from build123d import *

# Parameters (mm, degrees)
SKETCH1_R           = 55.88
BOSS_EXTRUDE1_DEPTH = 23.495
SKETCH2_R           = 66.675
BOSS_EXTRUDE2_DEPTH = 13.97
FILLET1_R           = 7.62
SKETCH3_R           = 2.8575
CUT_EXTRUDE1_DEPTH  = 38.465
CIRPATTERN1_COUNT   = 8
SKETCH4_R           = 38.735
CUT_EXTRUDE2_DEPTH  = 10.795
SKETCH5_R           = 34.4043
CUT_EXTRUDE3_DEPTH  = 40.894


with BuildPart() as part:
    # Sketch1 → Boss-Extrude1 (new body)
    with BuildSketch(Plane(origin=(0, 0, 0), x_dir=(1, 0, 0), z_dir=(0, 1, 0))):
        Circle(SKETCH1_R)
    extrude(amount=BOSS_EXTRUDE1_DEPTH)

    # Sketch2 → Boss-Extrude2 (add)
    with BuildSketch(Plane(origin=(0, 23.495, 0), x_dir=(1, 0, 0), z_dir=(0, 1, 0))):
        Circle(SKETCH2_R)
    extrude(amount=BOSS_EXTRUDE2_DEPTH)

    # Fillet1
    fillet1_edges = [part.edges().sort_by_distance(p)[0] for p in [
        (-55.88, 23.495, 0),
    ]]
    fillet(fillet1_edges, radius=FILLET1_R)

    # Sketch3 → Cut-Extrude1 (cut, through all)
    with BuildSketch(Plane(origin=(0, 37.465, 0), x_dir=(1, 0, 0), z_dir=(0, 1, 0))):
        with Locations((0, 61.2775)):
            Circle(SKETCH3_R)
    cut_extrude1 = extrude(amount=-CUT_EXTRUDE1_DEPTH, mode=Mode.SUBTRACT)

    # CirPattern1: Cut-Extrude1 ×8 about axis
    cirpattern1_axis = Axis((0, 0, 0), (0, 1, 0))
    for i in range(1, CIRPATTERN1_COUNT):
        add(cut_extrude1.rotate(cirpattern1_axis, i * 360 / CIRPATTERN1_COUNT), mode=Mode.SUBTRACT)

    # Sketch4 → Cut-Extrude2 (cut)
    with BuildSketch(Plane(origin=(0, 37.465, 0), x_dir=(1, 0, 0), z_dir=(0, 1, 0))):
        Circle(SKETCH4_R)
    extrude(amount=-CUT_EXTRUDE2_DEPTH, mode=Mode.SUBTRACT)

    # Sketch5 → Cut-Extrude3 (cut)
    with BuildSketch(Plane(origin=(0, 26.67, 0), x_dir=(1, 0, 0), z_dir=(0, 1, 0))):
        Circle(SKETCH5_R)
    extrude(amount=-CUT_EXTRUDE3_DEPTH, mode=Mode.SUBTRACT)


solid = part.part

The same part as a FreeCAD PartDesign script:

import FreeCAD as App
import Part
import Sketcher

V = App.Vector
Q = App.Units.Quantity


def edges_at(feature, points):
    """Names of the edges that pass closest to the given points."""
    edges = feature.Shape.Edges
    near = lambda p: min(range(len(edges)), key=lambda i: edges[i].distToShape(Part.Vertex(*p))[0])
    return sorted({f"Edge{near(p) + 1}" for p in points})

doc = App.newDocument("Part")
body = doc.addObject("PartDesign::Body", "Body")

sketch1 = body.newObject("Sketcher::SketchObject", "Sketch")
sketch1.AttachmentSupport = (doc.getObject("XZ_Plane"), [""])
sketch1.MapMode = "FlatFace"
sketch1.addGeometry(Part.Circle(V(0, 0, 0), V(0, 0, 1), 56), False)
sketch1.addConstraint(Sketcher.Constraint("Coincident", 0, 3, -1, 1))
sketch1.addConstraint(Sketcher.Constraint("Diameter", 0, Q("4.4 in")))
pad1 = body.newObject("PartDesign::Pad", "Pad")
pad1.Profile = sketch1
pad1.Length = Q("0.925 in")
pad1.Reversed = True

sketch2 = body.newObject("Sketcher::SketchObject", "Sketch001")
sketch2.AttachmentSupport = (doc.getObject("XZ_Plane"), [""])
sketch2.MapMode = "FlatFace"
sketch2.AttachmentOffset = App.Placement(V(0, 0, -0.925 * 25.4), App.Rotation())
sketch2.addGeometry(Part.Circle(V(0, 0, 0), V(0, 0, 1), 67), False)
sketch2.addConstraint(Sketcher.Constraint("Coincident", 0, 3, -1, 1))
sketch2.addConstraint(Sketcher.Constraint("Diameter", 0, Q("5.25 in")))
pad2 = body.newObject("PartDesign::Pad", "Pad001")
pad2.Profile = sketch2
pad2.Length = Q("0.55 in")
pad2.Reversed = True
doc.recompute()

fillet = body.newObject("PartDesign::Fillet", "Fillet")
fillet.Base = (pad2, edges_at(pad2, [(-55.88, 23.495, 0)]))
fillet.Radius = Q("0.3 in")

sketch3 = body.newObject("Sketcher::SketchObject", "Sketch002")
sketch3.AttachmentSupport = (doc.getObject("XZ_Plane"), [""])
sketch3.MapMode = "FlatFace"
sketch3.AttachmentOffset = App.Placement(V(0, 0, -1.475 * 25.4), App.Rotation())
sketch3.addGeometry(Part.Circle(V(0, -61.3, 0), V(0, 0, 1), 2.9), False)
sketch3.addConstraint(Sketcher.Constraint("PointOnObject", 0, 3, -2))
sketch3.addConstraint(Sketcher.Constraint("Diameter", 0, Q("0.225 in")))
sketch3.addConstraint(Sketcher.Constraint("DistanceY", 0, 3, -1, 1, Q("2.4125 in")))
pocket1 = body.newObject("PartDesign::Pocket", "Pocket")
pocket1.Profile = sketch3
pocket1.Type = "ThroughAll"
pocket1.Reversed = True
doc.recompute()

polarpattern = body.newObject("PartDesign::PolarPattern", "PolarPattern")
polarpattern.Originals = [pocket1]
polarpattern.Axis = (doc.getObject("Y_Axis"), [""])
polarpattern.Angle = 360
polarpattern.Occurrences = 8
body.Tip = polarpattern

sketch4 = body.newObject("Sketcher::SketchObject", "Sketch003")
sketch4.AttachmentSupport = (doc.getObject("XZ_Plane"), [""])
sketch4.MapMode = "FlatFace"
sketch4.AttachmentOffset = App.Placement(V(0, 0, -1.475 * 25.4), App.Rotation())
sketch4.addGeometry(Part.Circle(V(0, 0, 0), V(0, 0, 1), 39), False)
sketch4.addConstraint(Sketcher.Constraint("Coincident", 0, 3, -1, 1))
sketch4.addConstraint(Sketcher.Constraint("Diameter", 0, Q("3.05 in")))
pocket2 = body.newObject("PartDesign::Pocket", "Pocket001")
pocket2.Profile = sketch4
pocket2.Length = Q("0.425 in")
pocket2.Reversed = True

sketch5 = body.newObject("Sketcher::SketchObject", "Sketch004")
sketch5.AttachmentSupport = (doc.getObject("XZ_Plane"), [""])
sketch5.MapMode = "FlatFace"
sketch5.AttachmentOffset = App.Placement(V(0, 0, -1.05 * 25.4), App.Rotation())
sketch5.addGeometry(Part.Circle(V(0, 0, 0), V(0, 0, 1), 34), False)
sketch5.addConstraint(Sketcher.Constraint("Coincident", 0, 3, -1, 1))
sketch5.addConstraint(Sketcher.Constraint("Diameter", 0, Q("2.709 in")))
pocket3 = body.newObject("PartDesign::Pocket", "Pocket002")
pocket3.Profile = sketch5
pocket3.Length = Q("1.61 in")
pocket3.Reversed = True

doc.recompute()
